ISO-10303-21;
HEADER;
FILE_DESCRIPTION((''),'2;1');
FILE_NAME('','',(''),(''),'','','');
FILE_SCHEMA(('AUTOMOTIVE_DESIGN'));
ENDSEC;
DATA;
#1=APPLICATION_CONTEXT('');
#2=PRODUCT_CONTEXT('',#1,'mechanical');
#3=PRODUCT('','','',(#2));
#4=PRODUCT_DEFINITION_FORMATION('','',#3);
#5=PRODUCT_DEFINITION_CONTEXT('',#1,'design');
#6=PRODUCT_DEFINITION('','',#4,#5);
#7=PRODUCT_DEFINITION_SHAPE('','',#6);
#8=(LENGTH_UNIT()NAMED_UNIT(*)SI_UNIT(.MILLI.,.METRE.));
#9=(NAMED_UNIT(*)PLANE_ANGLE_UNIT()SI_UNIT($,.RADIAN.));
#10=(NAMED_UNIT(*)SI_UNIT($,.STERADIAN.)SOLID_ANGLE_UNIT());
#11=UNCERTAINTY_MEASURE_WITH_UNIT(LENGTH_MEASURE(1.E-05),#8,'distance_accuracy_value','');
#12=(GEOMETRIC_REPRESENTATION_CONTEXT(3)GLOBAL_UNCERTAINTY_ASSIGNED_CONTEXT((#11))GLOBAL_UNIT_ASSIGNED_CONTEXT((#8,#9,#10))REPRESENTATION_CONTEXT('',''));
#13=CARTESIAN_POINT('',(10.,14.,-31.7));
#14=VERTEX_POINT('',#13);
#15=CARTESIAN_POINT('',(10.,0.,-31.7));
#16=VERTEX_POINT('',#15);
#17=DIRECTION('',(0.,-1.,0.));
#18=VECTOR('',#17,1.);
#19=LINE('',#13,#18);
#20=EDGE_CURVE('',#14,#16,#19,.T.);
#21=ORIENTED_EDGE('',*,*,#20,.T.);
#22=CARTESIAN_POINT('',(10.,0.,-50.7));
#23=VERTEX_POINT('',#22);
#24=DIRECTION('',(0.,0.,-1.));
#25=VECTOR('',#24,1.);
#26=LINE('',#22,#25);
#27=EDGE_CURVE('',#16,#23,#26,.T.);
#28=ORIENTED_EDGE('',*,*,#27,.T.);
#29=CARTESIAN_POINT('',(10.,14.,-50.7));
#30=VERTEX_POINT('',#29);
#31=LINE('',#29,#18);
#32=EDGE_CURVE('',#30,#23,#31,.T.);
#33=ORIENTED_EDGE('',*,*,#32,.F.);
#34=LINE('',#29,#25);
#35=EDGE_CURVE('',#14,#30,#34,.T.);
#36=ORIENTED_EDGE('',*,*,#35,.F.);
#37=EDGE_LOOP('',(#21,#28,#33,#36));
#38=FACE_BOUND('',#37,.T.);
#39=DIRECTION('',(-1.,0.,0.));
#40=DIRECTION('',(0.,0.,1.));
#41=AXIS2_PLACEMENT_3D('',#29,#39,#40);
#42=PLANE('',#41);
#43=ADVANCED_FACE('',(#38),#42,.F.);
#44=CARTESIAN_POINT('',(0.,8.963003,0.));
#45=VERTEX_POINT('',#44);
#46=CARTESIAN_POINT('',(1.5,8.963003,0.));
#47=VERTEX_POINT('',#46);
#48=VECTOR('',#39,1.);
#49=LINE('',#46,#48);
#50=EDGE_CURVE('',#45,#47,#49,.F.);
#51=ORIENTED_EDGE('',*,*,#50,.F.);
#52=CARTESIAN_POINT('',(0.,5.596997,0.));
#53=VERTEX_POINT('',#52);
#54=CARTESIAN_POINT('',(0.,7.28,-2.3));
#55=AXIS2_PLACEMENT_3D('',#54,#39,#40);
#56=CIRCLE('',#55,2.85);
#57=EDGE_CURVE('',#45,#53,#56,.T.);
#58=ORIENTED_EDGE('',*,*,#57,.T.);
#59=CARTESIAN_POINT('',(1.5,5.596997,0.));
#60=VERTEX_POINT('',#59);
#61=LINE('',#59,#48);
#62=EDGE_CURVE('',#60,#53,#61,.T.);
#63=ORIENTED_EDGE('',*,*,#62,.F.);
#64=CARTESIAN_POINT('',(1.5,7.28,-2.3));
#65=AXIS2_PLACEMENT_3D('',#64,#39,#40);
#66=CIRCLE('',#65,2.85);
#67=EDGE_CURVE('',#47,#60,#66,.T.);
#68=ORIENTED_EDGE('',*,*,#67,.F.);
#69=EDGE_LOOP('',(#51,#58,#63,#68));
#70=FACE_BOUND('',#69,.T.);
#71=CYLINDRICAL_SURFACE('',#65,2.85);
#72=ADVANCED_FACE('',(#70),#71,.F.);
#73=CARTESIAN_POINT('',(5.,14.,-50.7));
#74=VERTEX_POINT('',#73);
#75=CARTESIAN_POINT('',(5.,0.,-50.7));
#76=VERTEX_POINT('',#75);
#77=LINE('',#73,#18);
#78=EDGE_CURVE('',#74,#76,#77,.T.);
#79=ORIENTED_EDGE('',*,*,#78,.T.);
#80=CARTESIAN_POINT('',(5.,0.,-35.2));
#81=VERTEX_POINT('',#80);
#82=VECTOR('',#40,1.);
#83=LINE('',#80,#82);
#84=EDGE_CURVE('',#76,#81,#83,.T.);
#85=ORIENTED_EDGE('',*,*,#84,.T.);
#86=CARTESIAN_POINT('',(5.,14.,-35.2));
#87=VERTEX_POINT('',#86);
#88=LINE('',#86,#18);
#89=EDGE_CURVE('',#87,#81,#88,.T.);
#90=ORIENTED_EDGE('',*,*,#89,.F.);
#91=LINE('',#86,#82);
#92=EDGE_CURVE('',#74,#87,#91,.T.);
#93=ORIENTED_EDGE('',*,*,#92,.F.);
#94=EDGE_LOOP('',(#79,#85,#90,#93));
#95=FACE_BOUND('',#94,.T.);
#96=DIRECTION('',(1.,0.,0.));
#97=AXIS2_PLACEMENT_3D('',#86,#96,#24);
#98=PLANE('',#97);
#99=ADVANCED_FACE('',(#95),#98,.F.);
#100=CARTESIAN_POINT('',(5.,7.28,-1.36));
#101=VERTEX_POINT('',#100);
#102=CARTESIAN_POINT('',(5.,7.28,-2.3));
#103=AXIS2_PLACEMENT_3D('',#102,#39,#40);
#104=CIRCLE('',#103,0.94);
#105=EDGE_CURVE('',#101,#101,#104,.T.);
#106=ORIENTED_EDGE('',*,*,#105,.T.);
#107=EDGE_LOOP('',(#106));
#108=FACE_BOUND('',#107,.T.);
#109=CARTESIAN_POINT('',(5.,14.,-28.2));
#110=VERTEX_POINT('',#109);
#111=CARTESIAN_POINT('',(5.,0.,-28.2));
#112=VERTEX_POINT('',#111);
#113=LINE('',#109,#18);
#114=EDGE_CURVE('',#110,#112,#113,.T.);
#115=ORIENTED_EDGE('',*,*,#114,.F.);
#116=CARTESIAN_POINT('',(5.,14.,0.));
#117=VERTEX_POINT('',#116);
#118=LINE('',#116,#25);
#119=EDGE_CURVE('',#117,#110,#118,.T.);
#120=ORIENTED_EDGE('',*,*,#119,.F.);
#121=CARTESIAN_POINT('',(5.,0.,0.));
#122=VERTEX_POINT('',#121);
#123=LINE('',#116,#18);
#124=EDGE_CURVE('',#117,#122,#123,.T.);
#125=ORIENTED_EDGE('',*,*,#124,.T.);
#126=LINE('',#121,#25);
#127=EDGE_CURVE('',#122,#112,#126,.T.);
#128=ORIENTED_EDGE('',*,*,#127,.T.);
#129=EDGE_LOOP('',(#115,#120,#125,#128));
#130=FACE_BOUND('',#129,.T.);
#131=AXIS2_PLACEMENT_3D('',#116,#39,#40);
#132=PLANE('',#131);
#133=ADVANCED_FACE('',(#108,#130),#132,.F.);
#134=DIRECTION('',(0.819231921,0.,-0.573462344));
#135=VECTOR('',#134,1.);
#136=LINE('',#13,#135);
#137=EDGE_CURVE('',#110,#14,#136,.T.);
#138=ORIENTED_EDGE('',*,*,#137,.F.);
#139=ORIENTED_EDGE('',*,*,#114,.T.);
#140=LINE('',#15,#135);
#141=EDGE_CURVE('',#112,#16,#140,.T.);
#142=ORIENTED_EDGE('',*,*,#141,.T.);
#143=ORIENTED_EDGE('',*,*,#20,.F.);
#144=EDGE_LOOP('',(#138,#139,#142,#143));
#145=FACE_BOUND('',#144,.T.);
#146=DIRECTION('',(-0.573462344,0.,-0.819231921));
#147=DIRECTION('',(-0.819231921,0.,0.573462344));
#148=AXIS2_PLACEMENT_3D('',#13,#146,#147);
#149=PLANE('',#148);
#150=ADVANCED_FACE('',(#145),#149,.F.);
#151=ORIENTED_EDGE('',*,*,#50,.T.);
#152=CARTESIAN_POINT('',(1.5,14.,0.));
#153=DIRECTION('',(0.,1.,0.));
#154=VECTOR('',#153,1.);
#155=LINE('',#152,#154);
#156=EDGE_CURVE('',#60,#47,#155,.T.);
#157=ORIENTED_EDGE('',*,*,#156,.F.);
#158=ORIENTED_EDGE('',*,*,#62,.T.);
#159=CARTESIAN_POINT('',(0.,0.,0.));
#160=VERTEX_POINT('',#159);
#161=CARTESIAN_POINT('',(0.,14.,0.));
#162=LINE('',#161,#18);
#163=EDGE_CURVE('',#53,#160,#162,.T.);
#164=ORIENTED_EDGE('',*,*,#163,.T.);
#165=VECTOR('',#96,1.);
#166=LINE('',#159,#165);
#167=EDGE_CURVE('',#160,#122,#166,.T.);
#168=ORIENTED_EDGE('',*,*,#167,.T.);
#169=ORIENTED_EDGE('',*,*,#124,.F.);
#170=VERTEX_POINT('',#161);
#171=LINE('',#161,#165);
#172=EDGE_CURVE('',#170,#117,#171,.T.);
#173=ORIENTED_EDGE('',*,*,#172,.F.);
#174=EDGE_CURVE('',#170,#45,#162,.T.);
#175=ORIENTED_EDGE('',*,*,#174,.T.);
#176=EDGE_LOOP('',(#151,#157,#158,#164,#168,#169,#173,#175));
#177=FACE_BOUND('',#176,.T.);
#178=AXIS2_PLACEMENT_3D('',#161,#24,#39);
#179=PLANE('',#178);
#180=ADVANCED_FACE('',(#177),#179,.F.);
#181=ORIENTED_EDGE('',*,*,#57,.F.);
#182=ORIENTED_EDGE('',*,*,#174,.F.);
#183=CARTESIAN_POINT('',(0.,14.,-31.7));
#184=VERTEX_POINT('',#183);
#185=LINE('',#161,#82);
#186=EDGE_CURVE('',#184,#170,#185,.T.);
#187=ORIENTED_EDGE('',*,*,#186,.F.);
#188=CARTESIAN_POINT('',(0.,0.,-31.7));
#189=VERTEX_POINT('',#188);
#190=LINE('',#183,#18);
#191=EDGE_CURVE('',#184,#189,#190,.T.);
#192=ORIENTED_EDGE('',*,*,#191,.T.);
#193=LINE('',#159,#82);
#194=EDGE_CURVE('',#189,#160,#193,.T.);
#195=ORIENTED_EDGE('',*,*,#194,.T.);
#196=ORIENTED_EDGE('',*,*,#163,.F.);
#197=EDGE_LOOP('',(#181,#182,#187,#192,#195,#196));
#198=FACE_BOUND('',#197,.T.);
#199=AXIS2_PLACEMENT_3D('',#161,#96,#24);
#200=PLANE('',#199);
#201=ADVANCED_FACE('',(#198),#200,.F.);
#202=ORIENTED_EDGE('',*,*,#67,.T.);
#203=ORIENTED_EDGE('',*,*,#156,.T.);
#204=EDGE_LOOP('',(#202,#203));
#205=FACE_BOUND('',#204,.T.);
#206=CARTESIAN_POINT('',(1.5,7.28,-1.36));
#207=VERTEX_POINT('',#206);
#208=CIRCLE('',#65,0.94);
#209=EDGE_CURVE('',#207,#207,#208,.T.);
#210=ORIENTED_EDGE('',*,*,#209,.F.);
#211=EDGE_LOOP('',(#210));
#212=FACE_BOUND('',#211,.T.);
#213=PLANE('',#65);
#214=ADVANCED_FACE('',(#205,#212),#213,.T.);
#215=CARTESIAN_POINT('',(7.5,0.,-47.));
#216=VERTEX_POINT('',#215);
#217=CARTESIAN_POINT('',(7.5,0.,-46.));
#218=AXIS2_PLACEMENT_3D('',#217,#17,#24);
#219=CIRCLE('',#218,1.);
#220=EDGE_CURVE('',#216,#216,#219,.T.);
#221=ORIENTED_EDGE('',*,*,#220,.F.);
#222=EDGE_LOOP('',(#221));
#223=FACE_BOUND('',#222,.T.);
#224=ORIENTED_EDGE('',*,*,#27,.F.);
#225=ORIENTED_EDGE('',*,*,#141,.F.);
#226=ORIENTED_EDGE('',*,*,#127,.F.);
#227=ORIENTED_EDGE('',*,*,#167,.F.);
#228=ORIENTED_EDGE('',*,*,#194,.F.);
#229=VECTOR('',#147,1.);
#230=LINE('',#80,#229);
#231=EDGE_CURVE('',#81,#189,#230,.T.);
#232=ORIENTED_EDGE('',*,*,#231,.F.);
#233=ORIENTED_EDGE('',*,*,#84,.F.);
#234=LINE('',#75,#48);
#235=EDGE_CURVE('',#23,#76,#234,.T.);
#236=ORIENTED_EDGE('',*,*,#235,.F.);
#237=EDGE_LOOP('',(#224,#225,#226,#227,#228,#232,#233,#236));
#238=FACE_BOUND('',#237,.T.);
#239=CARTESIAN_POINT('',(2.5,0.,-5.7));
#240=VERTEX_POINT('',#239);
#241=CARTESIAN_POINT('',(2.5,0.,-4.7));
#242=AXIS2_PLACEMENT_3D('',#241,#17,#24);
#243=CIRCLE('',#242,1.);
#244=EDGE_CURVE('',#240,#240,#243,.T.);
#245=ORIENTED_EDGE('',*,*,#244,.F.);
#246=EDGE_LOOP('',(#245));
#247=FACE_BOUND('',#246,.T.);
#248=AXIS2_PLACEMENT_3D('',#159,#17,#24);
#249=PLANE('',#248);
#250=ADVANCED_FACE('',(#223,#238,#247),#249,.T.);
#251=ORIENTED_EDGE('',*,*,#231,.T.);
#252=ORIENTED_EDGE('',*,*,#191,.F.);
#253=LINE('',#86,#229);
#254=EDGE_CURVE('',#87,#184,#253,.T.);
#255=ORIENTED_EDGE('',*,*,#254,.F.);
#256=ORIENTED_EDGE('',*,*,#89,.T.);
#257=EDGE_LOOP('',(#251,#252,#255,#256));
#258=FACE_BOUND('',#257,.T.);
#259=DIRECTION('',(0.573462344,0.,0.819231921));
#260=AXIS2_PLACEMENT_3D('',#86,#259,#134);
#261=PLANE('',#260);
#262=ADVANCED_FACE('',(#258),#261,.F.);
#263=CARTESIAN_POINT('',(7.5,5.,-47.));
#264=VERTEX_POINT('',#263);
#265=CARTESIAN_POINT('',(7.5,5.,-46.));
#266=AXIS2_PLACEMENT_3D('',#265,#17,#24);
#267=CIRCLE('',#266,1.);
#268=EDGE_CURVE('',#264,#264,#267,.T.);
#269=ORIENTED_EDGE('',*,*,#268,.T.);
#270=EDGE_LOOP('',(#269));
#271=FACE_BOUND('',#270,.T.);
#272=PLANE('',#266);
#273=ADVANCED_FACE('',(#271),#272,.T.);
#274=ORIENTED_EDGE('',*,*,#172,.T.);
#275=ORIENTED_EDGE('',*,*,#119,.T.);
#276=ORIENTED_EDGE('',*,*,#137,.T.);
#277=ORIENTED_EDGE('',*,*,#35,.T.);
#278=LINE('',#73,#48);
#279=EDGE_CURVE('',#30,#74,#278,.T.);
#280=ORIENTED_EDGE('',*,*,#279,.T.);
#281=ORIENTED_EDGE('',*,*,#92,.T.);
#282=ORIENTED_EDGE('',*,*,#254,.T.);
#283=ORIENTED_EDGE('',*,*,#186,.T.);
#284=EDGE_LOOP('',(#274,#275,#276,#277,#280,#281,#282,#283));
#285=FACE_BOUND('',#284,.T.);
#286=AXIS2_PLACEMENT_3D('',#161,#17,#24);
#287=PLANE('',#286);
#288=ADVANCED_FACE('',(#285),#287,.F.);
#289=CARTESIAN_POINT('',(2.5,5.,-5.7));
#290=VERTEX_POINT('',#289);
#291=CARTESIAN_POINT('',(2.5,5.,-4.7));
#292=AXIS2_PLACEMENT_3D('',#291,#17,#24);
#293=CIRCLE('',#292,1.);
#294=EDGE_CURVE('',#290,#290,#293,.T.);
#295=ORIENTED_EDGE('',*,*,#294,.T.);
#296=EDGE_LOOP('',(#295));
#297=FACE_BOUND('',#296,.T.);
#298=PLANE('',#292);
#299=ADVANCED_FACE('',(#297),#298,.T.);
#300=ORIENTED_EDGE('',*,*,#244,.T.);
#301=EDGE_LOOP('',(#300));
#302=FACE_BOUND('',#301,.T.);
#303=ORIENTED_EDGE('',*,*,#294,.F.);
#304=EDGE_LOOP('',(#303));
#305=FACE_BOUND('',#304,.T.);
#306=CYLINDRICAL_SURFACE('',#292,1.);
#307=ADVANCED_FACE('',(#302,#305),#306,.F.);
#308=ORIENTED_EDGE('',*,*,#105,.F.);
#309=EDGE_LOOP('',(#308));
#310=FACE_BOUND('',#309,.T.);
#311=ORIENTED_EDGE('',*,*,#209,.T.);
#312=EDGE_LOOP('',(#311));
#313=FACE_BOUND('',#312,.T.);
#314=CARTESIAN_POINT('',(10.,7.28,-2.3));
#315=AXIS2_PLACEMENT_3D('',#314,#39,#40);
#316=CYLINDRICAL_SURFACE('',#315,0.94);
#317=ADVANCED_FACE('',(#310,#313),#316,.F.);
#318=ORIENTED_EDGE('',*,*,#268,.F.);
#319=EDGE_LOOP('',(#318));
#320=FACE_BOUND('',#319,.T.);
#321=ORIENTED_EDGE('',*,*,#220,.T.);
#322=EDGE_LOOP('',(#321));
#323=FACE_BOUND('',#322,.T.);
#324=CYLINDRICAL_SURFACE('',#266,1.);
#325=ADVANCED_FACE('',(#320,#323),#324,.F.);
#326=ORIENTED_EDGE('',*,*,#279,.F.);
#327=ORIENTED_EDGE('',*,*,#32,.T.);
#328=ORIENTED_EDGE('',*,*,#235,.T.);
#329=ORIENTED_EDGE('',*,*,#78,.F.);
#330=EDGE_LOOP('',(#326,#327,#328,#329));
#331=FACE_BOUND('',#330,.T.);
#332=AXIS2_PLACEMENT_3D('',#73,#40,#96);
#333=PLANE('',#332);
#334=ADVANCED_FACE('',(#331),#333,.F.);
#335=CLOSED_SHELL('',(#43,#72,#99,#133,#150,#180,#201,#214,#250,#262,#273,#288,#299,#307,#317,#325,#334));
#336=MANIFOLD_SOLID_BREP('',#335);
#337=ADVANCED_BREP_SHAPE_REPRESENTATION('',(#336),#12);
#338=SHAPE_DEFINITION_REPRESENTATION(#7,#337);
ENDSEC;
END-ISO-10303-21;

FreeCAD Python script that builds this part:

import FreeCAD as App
import Part
import Sketcher

V = App.Vector
Q = App.Units.Quantity

doc = App.newDocument("Part")
body = doc.addObject("PartDesign::Body", "Body")

# Sketch on XZ plane
sketch1 = doc.addObject("Sketcher::SketchObject", "Sketch")
body.addObject(sketch1)
sketch1.AttachmentSupport = (doc.XZ_Plane, [""])
sketch1.MapMode = "FlatFace"
sketch1.addGeometry(Part.LineSegment(V(0, 0, 0), V(5, 0, 0)), False)
sketch1.addGeometry(Part.LineSegment(V(5, 0, 0), V(5, -28, 0)), False)
sketch1.addGeometry(Part.LineSegment(V(5, -28, 0), V(10, -32, 0)), False)
sketch1.addGeometry(Part.LineSegment(V(10, -32, 0), V(10, -51, 0)), False)
sketch1.addGeometry(Part.LineSegment(V(10, -51, 0), V(5, -51, 0)), False)
sketch1.addGeometry(Part.LineSegment(V(5, -51, 0), V(5, -35, 0)), False)
sketch1.addGeometry(Part.LineSegment(V(5, -35, 0), V(0, -32, 0)), False)
sketch1.addGeometry(Part.LineSegment(V(0, -32, 0), V(0, 0, 0)), False)
sketch1.addConstraint(Sketcher.Constraint("Coincident", 0, 2, 1, 1))
sketch1.addConstraint(Sketcher.Constraint("Coincident", 1, 2, 2, 1))
sketch1.addConstraint(Sketcher.Constraint("Coincident", 2, 2, 3, 1))
sketch1.addConstraint(Sketcher.Constraint("Coincident", 3, 2, 4, 1))
sketch1.addConstraint(Sketcher.Constraint("Coincident", 4, 2, 5, 1))
sketch1.addConstraint(Sketcher.Constraint("Coincident", 5, 2, 6, 1))
sketch1.addConstraint(Sketcher.Constraint("Coincident", 6, 2, 7, 1))
sketch1.addConstraint(Sketcher.Constraint("Coincident", 7, 2, 0, 1))
sketch1.addConstraint(Sketcher.Constraint("Horizontal", 0))
sketch1.addConstraint(Sketcher.Constraint("Vertical", 1))
sketch1.addConstraint(Sketcher.Constraint("Vertical", 3))
sketch1.addConstraint(Sketcher.Constraint("Horizontal", 4))
sketch1.addConstraint(Sketcher.Constraint("Vertical", 5))
sketch1.addConstraint(Sketcher.Constraint("Vertical", 7))
sketch1.addConstraint(Sketcher.Constraint("Coincident", 7, 2, -1, 1))
sketch1.addConstraint(Sketcher.Constraint("Parallel", 2, 6))
sketch1.addConstraint(Sketcher.Constraint("Horizontal", 2, 2, 6, 2))
sketch1.addConstraint(Sketcher.Constraint("Vertical", 1, 2, 4, 2))
sketch1.addConstraint(Sketcher.Constraint("Equal", 0, 4))
sketch1.addConstraint(Sketcher.Constraint("DistanceX", 0, 1, 0, 2, Q("5 mm")))
sketch1.addConstraint(Sketcher.Constraint("DistanceY", 3, 2, 3, 1, Q("19 mm")))
sketch1.addConstraint(Sketcher.Constraint("DistanceY", 1, 2, 1, 1, Q("28.2 mm")))
sketch1.addConstraint(Sketcher.Constraint("DistanceY", 5, 1, 5, 2, Q("15.5 mm")))
pad1 = doc.addObject("PartDesign::Pad", "Pad")
body.addObject(pad1)
pad1.Profile = sketch1
pad1.Length = 14
pad1.Reversed = True

# Sketch on XZ plane
sketch2 = doc.addObject("Sketcher::SketchObject", "Sketch001")
body.addObject(sketch2)
sketch2.AttachmentSupport = (doc.XZ_Plane, [""])
sketch2.MapMode = "FlatFace"
sketch2.addGeometry(Part.Circle(V(2.5, -4.7, 0), V(0, 0, 1), 1), False)
sketch2.addGeometry(Part.Circle(V(7.5, -46, 0), V(0, 0, 1), 1), False)
sketch2.addConstraint(Sketcher.Constraint("Equal", 0, 1))
sketch2.addConstraint(Sketcher.Constraint("Diameter", 0, Q("2 mm")))
sketch2.addConstraint(Sketcher.Constraint("DistanceY", 1, 3, -1, 1, Q("46 mm")))
sketch2.addConstraint(Sketcher.Constraint("DistanceX", 0, 3, 1, 3, Q("5 mm")))
sketch2.addConstraint(Sketcher.Constraint("DistanceX", -1, 1, 0, 3, Q("2.5 mm")))
sketch2.addConstraint(Sketcher.Constraint("DistanceY", 0, 3, -1, 1, Q("4.7 mm")))
pocket1 = doc.addObject("PartDesign::Pocket", "Pocket")
body.addObject(pocket1)
pocket1.Profile = sketch2
pocket1.Length = 5

# Sketch on YZ plane
sketch3 = doc.addObject("Sketcher::SketchObject", "Sketch002")
body.addObject(sketch3)
sketch3.AttachmentSupport = (doc.YZ_Plane, [""])
sketch3.MapMode = "FlatFace"
sketch3.addGeometry(Part.Circle(V(7.3, -2.3, 0), V(0, 0, 1), 2.9), False)
sketch3.addConstraint(Sketcher.Constraint("Diameter", 0, Q("5.7 mm")))
sketch3.addConstraint(Sketcher.Constraint("DistanceY", 0, 3, -1, 1, Q("2.3 mm")))
sketch3.addConstraint(Sketcher.Constraint("DistanceX", -1, 1, 0, 3, Q("7.28 mm")))
pocket2 = doc.addObject("PartDesign::Pocket", "Pocket001")
body.addObject(pocket2)
pocket2.Profile = sketch3
pocket2.Length = 1.5
pocket2.Reversed = True

# Sketch on YZ plane
sketch4 = doc.addObject("Sketcher::SketchObject", "Sketch003")
body.addObject(sketch4)
sketch4.AttachmentSupport = (doc.YZ_Plane, [""])
sketch4.MapMode = "FlatFace"
sketch4.AttachmentOffset = App.Placement(V(0, 0, 1.5), App.Rotation())
sketch4.addGeometry(Part.Circle(V(7.3, -2.3, 0), V(0, 0, 1), 0.9), False)
sketch4.addConstraint(Sketcher.Constraint("Diameter", 0, Q("1.88 mm")))
sketch4.addConstraint(Sketcher.Constraint("DistanceY", 0, 3, -1, 1, Q("2.3 mm")))
sketch4.addConstraint(Sketcher.Constraint("DistanceX", -1, 1, 0, 3, Q("7.28 mm")))
pocket3 = doc.addObject("PartDesign::Pocket", "Pocket002")
body.addObject(pocket3)
pocket3.Profile = sketch4
pocket3.Type = "ThroughAll"
pocket3.Reversed = True

doc.recompute()
